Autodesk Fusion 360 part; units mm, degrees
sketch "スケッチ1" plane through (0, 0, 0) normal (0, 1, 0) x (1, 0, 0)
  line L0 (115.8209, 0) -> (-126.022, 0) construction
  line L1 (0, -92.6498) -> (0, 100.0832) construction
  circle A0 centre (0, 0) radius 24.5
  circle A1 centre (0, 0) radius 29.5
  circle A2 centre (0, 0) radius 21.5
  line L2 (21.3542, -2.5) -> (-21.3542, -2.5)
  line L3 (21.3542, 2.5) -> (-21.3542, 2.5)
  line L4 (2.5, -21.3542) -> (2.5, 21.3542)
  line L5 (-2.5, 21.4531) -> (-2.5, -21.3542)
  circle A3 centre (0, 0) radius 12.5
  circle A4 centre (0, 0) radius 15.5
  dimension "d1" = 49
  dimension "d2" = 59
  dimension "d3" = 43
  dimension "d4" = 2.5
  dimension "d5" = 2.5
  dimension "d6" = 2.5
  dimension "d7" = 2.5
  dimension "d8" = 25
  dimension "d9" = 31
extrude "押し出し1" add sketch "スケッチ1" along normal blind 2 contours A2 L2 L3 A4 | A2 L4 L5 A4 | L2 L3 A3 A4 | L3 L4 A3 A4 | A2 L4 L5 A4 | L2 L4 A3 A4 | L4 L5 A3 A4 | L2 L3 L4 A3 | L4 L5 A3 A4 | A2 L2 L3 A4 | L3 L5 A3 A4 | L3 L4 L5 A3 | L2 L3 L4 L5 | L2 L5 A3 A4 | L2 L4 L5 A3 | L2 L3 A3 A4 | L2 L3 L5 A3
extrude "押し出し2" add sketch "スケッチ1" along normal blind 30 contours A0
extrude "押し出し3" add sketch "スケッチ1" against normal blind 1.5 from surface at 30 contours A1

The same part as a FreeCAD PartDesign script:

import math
import FreeCAD as App
import Part
import Sketcher

V = App.Vector

doc = App.newDocument("Part")
body = doc.addObject("PartDesign::Body", "Body")

sketch1 = doc.addObject("Sketcher::SketchObject", "Sketch")
body.addObject(sketch1)
sketch1.AttachmentSupport = (doc.XZ_Plane, [""])
sketch1.MapMode = "FlatFace"
sketch1.addGeometry([
    Part.ArcOfCircle(Part.Circle(V(0, 0, 0), V(0, 0, 1), 21.5), math.radians(-6.677392), math.radians(6.677392)),
    Part.LineSegment(V(21.3542, -2.5, 0), V(15.297059, -2.5, 0)),
    Part.ArcOfCircle(Part.Circle(V(0, 0, 0), V(0, 0, 1), 15.5), math.radians(-80.718201), math.radians(-9.281799)),
    Part.LineSegment(V(2.5, -15.297059, 0), V(2.5, -21.3542, 0)),
    Part.ArcOfCircle(Part.Circle(V(0, 0, 0), V(0, 0, 1), 21.5), math.radians(-96.677405), math.radians(-83.322608)),
    Part.LineSegment(V(-2.5, -21.354157, 0), V(-2.5, -15.297059, 0)),
    Part.ArcOfCircle(Part.Circle(V(0, 0, 0), V(0, 0, 1), 15.5), math.radians(-170.718201), math.radians(-99.281799)),
    Part.LineSegment(V(-15.297059, -2.5, 0), V(-21.3542, -2.5, 0)),
    Part.ArcOfCircle(Part.Circle(V(0, 0, 0), V(0, 0, 1), 21.5), math.radians(173.322608), math.radians(186.677392)),
    Part.LineSegment(V(-21.3542, 2.5, 0), V(-15.297059, 2.5, 0)),
    Part.ArcOfCircle(Part.Circle(V(0, 0, 0), V(0, 0, 1), 15.5), math.radians(99.281799), math.radians(170.718201)),
    Part.LineSegment(V(-2.5, 15.297059, 0), V(-2.5, 21.3542, 0)),
    Part.ArcOfCircle(Part.Circle(V(0, 0, 0), V(0, 0, 1), 21.5), math.radians(83.322608), math.radians(96.677392)),
    Part.LineSegment(V(2.5, 21.3542, 0), V(2.5, 15.297059, 0)),
    Part.ArcOfCircle(Part.Circle(V(0, 0, 0), V(0, 0, 1), 15.5), math.radians(9.281799), math.radians(80.718201)),
    Part.LineSegment(V(15.297059, 2.5, 0), V(21.3542, 2.5, 0)),
    Part.LineSegment(V(12.247449, -2.5, 0), V(2.5, -2.5, 0)),
    Part.LineSegment(V(2.5, -2.5, 0), V(2.5, -12.247449, 0)),
    Part.ArcOfCircle(Part.Circle(V(0, 0, 0), V(0, 0, 1), 12.5), math.radians(-78.463041), math.radians(-11.536959)),
    Part.LineSegment(V(2.5, 2.5, 0), V(12.247449, 2.5, 0)),
    Part.ArcOfCircle(Part.Circle(V(0, 0, 0), V(0, 0, 1), 12.5), math.radians(11.536959), math.radians(78.463041)),
    Part.LineSegment(V(2.5, 12.247449, 0), V(2.5, 2.5, 0)),
    Part.LineSegment(V(-2.5, -12.247449, 0), V(-2.5, -2.5, 0)),
    Part.LineSegment(V(-2.5, -2.5, 0), V(-12.247449, -2.5, 0)),
    Part.ArcOfCircle(Part.Circle(V(0, 0, 0), V(0, 0, 1), 12.5), math.radians(-168.463041), math.radians(-101.536959)),
    Part.LineSegment(V(-2.5, 2.5, 0), V(-2.5, 12.247449, 0)),
    Part.ArcOfCircle(Part.Circle(V(0, 0, 0), V(0, 0, 1), 12.5), math.radians(101.536959), math.radians(168.463041)),
    Part.LineSegment(V(-12.247449, 2.5, 0), V(-2.5, 2.5, 0)),
], False)
sketch1.addConstraint([
    Sketcher.Constraint("Coincident", 0, 1, 1, 1),
    Sketcher.Constraint("Coincident", 1, 2, 2, 2),
    Sketcher.Constraint("Coincident", 2, 1, 3, 1),
    Sketcher.Constraint("Coincident", 3, 2, 4, 2),
    Sketcher.Constraint("Coincident", 4, 1, 5, 1),
    Sketcher.Constraint("Coincident", 5, 2, 6, 2),
    Sketcher.Constraint("Coincident", 6, 1, 7, 1),
    Sketcher.Constraint("Coincident", 7, 2, 8, 2),
    Sketcher.Constraint("Coincident", 8, 1, 9, 1),
    Sketcher.Constraint("Coincident", 9, 2, 10, 2),
    Sketcher.Constraint("Coincident", 10, 1, 11, 1),
    Sketcher.Constraint("Coincident", 11, 2, 12, 2),
    Sketcher.Constraint("Coincident", 12, 1, 13, 1),
    Sketcher.Constraint("Coincident", 13, 2, 14, 2),
    Sketcher.Constraint("Coincident", 14, 1, 15, 1),
    Sketcher.Constraint("Coincident", 15, 2, 0, 2),
    Sketcher.Constraint("Coincident", 16, 2, 17, 1),
    Sketcher.Constraint("Coincident", 17, 2, 18, 1),
    Sketcher.Constraint("Coincident", 18, 2, 16, 1),
    Sketcher.Constraint("Coincident", 19, 2, 20, 1),
    Sketcher.Constraint("Coincident", 20, 2, 21, 1),
    Sketcher.Constraint("Coincident", 21, 2, 19, 1),
    Sketcher.Constraint("Coincident", 22, 2, 23, 1),
    Sketcher.Constraint("Coincident", 23, 2, 24, 1),
    Sketcher.Constraint("Coincident", 24, 2, 22, 1),
    Sketcher.Constraint("Coincident", 25, 2, 26, 1),
    Sketcher.Constraint("Coincident", 26, 2, 27, 1),
    Sketcher.Constraint("Coincident", 27, 2, 25, 1),
    Sketcher.Constraint("Horizontal", 1),
    Sketcher.Constraint("Vertical", 3),
    Sketcher.Constraint("Vertical", 5),
    Sketcher.Constraint("Horizontal", 7),
    Sketcher.Constraint("Horizontal", 9),
    Sketcher.Constraint("Vertical", 11),
    Sketcher.Constraint("Vertical", 13),
    Sketcher.Constraint("Horizontal", 15),
    Sketcher.Constraint("Horizontal", 16),
    Sketcher.Constraint("Vertical", 17),
    Sketcher.Constraint("Horizontal", 19),
    Sketcher.Constraint("Vertical", 21),
    Sketcher.Constraint("Vertical", 22),
    Sketcher.Constraint("Horizontal", 23),
    Sketcher.Constraint("Vertical", 25),
    Sketcher.Constraint("Horizontal", 27),
    Sketcher.Constraint("Coincident", 0, 3, -1, 1),
    Sketcher.Constraint("Coincident", 2, 3, -1, 1),
    Sketcher.Constraint("Coincident", 4, 3, -1, 1),
    Sketcher.Constraint("Coincident", 6, 3, -1, 1),
    Sketcher.Constraint("Coincident", 8, 3, -1, 1),
    Sketcher.Constraint("Coincident", 10, 3, -1, 1),
    Sketcher.Constraint("Coincident", 12, 3, -1, 1),
    Sketcher.Constraint("Coincident", 14, 3, -1, 1),
    Sketcher.Constraint("Coincident", 18, 3, -1, 1),
    Sketcher.Constraint("Coincident", 20, 3, -1, 1),
    Sketcher.Constraint("Coincident", 24, 3, -1, 1),
    Sketcher.Constraint("Coincident", 26, 3, -1, 1),
    Sketcher.Constraint("Equal", 0, 4),
    Sketcher.Constraint("Equal", 2, 6),
    Sketcher.Constraint("Equal", 4, 8),
    Sketcher.Constraint("Equal", 6, 10),
    Sketcher.Constraint("Equal", 8, 12),
    Sketcher.Constraint("Equal", 10, 14),
    Sketcher.Constraint("Equal", 18, 20),
    Sketcher.Constraint("Equal", 20, 24),
    Sketcher.Constraint("Equal", 24, 26),
    Sketcher.Constraint("Symmetric", 21, 2, 22, 2, -1, 1),
    Sketcher.Constraint("Symmetric", 16, 2, 27, 2, -1, 1),
    Sketcher.Constraint("Symmetric", 16, 2, 22, 2, -2),
    Sketcher.Constraint("Horizontal", 3, 2, 4, 1),
    Sketcher.Constraint("Horizontal", 1, 2, 6, 1),
    Sketcher.Constraint("Horizontal", 11, 2, 12, 1),
    Sketcher.Constraint("Horizontal", 9, 2, 14, 1),
    Sketcher.Constraint("Horizontal", 7, 2, 16, 2),
    Sketcher.Constraint("Horizontal", 15, 2, 19, 2),
    Sketcher.Constraint("Vertical", 5, 2, 10, 1),
    Sketcher.Constraint("Vertical", 13, 2, 16, 2),
    Sketcher.Constraint("Equal", 15, 3),
    Sketcher.Constraint("Radius", 0, 21.5),
    Sketcher.Constraint("Radius", 2, 15.5),
    Sketcher.Constraint("Radius", 18, 12.5),
    Sketcher.Constraint("DistanceY", 0, 1, -1, 1, 2.5),
])
pad1 = doc.addObject("PartDesign::Pad", "Pad")
body.addObject(pad1)
pad1.Profile = sketch1
pad1.Length = 2
pad1.Reversed = True

sketch2 = doc.addObject("Sketcher::SketchObject", "Sketch001")
body.addObject(sketch2)
sketch2.AttachmentSupport = (doc.XZ_Plane, [""])
sketch2.MapMode = "FlatFace"
sketch2.addGeometry([
    Part.Circle(V(0, 0, 0), V(0, 0, 1), 24.5),
    Part.Circle(V(0, 0, 0), V(0, 0, 1), 21.5),
], False)
sketch2.addConstraint([
    Sketcher.Constraint("Coincident", 0, 3, -1, 1),
    Sketcher.Constraint("Coincident", 1, 3, -1, 1),
    Sketcher.Constraint("Diameter", 0, 49.0),
    Sketcher.Constraint("Diameter", 1, 43.0),
])
pad2 = doc.addObject("PartDesign::Pad", "Pad001")
body.addObject(pad2)
pad2.Profile = sketch2
pad2.Length = 30
pad2.Reversed = True

sketch3 = doc.addObject("Sketcher::SketchObject", "Sketch002")
body.addObject(sketch3)
sketch3.AttachmentSupport = (doc.XZ_Plane, [""])
sketch3.MapMode = "FlatFace"
sketch3.AttachmentOffset = App.Placement(V(0, 0, -30), App.Rotation())
sketch3.addGeometry([
    Part.Circle(V(0, 0, 0), V(0, 0, 1), 29.5),
    Part.Circle(V(0, 0, 0), V(0, 0, 1), 24.5),
], False)
sketch3.addConstraint([
    Sketcher.Constraint("Coincident", 0, 3, -1, 1),
    Sketcher.Constraint("Coincident", 1, 3, -1, 1),
    Sketcher.Constraint("Diameter", 0, 59.0),
    Sketcher.Constraint("Diameter", 1, 49.0),
])
pad3 = doc.addObject("PartDesign::Pad", "Pad002")
body.addObject(pad3)
pad3.Profile = sketch3
pad3.Length = 1.5

doc.recompute()
